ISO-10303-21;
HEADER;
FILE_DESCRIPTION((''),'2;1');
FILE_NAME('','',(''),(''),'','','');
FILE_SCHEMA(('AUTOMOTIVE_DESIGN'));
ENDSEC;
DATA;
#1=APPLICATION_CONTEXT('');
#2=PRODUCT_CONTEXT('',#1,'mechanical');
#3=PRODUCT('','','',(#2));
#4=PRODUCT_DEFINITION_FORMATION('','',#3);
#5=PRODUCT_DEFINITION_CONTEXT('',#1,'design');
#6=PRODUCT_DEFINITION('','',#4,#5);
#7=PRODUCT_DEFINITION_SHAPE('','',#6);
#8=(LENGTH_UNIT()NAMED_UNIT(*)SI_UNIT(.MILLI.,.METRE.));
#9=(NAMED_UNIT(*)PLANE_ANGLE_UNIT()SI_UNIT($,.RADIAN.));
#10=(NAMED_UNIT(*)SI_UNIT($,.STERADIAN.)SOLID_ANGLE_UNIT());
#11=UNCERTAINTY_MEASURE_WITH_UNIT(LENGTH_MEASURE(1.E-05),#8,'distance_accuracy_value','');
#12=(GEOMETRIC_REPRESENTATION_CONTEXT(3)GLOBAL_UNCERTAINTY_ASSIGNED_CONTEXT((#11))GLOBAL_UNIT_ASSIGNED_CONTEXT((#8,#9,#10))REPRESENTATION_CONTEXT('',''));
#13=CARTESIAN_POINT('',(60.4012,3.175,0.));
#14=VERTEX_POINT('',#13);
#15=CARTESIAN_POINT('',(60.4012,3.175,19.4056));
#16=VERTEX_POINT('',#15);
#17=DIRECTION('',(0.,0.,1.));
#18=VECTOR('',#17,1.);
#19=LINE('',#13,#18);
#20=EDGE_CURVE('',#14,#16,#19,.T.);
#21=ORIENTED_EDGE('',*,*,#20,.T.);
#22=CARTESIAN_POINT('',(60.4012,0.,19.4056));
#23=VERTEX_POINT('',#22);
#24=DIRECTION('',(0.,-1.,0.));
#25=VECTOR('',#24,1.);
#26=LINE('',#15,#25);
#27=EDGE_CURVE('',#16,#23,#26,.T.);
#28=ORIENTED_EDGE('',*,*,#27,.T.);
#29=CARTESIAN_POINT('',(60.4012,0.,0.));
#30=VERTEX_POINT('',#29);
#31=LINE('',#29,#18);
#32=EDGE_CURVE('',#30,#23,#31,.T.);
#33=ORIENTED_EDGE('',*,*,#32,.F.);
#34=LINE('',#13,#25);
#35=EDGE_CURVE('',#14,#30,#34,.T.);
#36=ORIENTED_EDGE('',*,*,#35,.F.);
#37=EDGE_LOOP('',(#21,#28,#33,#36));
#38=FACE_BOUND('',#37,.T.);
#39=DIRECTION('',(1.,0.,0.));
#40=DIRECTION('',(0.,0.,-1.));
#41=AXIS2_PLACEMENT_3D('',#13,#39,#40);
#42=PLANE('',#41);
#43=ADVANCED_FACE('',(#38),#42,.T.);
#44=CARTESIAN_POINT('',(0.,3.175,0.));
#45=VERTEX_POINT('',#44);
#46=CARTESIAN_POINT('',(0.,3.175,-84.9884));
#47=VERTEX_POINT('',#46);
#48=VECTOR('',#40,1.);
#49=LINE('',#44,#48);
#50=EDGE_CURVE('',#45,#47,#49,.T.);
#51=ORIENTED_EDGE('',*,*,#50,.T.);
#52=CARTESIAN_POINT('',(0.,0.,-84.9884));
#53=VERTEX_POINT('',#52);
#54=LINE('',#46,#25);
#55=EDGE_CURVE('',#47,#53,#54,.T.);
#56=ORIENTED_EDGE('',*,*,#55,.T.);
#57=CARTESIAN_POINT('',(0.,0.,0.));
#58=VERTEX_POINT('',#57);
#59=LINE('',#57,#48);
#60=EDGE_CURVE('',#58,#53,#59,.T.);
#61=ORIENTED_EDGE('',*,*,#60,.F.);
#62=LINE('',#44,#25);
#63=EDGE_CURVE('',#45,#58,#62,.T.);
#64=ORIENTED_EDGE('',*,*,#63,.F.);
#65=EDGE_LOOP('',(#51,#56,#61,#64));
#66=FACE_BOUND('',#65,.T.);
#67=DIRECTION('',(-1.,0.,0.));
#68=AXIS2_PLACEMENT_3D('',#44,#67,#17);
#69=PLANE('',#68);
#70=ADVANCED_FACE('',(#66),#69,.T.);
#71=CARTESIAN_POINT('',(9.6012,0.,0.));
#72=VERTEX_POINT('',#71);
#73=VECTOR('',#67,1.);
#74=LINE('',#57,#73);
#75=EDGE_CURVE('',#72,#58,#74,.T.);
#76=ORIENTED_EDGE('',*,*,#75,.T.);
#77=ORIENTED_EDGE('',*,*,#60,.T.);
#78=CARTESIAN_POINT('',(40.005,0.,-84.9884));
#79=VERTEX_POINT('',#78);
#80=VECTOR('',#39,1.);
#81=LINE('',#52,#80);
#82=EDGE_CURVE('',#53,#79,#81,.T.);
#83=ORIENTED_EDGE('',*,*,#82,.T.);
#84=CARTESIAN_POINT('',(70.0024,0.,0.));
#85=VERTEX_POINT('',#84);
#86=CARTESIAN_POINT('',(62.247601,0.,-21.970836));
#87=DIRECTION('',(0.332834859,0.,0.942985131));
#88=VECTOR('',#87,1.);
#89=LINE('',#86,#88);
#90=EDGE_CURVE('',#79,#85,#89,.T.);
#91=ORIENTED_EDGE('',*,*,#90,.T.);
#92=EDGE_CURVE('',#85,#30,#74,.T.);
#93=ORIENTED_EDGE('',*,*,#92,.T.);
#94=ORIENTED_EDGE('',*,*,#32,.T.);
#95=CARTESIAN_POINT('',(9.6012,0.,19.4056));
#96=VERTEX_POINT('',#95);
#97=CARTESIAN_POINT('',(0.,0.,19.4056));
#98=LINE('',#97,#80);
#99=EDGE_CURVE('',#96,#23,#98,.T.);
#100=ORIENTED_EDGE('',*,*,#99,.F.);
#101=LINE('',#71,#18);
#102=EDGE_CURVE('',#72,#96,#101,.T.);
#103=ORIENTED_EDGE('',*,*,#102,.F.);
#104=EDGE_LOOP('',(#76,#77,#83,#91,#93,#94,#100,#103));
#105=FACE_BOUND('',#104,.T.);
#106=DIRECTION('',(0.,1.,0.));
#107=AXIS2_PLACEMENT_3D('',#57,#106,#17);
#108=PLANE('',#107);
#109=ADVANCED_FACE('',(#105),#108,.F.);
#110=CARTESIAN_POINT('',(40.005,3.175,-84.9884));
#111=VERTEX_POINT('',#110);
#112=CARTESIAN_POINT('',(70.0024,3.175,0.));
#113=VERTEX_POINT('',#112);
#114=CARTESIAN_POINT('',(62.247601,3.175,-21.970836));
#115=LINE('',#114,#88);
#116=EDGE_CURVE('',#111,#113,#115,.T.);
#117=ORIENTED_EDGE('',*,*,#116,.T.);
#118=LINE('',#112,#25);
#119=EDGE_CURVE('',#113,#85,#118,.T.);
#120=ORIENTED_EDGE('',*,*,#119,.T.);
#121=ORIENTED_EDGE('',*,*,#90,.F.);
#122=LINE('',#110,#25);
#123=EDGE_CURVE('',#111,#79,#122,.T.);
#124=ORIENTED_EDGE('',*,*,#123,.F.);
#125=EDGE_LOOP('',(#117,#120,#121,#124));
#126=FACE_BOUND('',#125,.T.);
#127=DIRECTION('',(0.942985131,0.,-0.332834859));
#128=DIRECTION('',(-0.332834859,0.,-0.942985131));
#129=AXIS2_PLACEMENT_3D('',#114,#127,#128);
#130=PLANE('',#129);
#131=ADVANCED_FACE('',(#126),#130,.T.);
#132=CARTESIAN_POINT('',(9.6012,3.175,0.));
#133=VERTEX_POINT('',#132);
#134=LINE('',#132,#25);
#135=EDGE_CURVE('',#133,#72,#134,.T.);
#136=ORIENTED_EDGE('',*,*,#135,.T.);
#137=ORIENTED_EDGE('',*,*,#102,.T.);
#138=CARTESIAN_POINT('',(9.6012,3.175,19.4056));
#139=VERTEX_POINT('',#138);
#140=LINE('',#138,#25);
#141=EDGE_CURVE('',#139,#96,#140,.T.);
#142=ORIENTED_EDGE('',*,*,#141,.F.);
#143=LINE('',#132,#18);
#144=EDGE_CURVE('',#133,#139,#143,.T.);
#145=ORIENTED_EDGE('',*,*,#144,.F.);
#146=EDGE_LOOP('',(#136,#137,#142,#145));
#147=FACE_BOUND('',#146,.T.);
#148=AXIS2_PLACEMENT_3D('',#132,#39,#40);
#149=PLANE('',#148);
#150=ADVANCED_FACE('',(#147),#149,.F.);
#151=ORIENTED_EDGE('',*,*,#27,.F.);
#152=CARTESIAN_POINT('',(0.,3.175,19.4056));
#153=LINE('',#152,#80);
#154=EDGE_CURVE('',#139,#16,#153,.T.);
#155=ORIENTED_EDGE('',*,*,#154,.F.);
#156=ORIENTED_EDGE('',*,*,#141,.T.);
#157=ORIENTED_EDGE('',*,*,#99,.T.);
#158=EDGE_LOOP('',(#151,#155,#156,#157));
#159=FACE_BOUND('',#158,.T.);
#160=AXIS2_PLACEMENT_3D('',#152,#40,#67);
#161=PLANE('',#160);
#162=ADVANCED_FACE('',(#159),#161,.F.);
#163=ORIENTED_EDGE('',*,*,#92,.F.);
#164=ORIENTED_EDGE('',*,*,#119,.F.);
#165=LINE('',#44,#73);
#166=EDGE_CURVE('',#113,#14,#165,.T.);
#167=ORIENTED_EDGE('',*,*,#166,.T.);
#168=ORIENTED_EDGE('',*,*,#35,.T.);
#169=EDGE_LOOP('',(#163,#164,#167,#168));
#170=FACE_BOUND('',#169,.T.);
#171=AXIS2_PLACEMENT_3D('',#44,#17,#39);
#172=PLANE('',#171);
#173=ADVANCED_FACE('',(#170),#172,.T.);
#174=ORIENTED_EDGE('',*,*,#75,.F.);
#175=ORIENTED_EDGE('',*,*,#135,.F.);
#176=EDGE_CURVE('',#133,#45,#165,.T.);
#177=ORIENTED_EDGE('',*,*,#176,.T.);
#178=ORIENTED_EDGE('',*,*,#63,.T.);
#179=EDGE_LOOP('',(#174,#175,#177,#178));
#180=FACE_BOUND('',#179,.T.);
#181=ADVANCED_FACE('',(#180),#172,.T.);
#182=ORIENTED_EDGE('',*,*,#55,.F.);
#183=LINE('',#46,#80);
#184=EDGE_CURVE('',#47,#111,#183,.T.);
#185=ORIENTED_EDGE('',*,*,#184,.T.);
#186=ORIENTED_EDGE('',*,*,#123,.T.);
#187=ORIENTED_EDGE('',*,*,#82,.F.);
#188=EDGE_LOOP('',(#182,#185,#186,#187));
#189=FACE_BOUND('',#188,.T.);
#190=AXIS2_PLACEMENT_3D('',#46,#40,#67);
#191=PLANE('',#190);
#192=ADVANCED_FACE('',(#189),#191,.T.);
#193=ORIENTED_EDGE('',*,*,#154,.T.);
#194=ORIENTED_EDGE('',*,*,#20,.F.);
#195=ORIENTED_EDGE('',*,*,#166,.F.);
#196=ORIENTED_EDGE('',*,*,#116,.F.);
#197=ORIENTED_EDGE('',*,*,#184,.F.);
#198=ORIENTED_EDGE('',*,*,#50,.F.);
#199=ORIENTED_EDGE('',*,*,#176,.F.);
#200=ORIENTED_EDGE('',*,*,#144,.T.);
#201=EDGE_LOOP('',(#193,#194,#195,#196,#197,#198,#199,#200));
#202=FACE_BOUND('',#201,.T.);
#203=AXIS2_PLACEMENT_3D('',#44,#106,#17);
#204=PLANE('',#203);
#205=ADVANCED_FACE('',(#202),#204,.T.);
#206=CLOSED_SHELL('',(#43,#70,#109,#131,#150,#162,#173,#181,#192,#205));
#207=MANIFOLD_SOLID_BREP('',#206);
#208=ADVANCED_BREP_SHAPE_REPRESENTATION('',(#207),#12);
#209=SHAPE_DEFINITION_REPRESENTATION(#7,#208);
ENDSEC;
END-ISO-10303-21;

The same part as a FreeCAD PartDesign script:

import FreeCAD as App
import Part
import Sketcher
from FreeCAD import Vector
Q = App.Units.Quantity

doc = App.newDocument("Part")
body = doc.addObject("PartDesign::Body", "Body")

sketch1 = body.newObject("Sketcher::SketchObject", "Sketch")
sketch1.AttachmentSupport = (doc.getObject("XZ_Plane"), [""])
sketch1.MapMode = "FlatFace"
sketch1.addGeometry(Part.LineSegment(Vector(9.6012, 0, 0), Vector(9.6012, 19.4056, 0)), False)
sketch1.addGeometry(Part.LineSegment(Vector(9.6012, 19.4056, 0), Vector(60.4012, 19.4056, 0)), False)
sketch1.addGeometry(Part.LineSegment(Vector(60.4012, 19.4056, 0), Vector(60.4012, 0, 0)), False)
sketch1.addGeometry(Part.LineSegment(Vector(60.4012, 0, 0), Vector(70.0024, 0, 0)), False)
sketch1.addGeometry(Part.LineSegment(Vector(70.0024, 0, 0), Vector(40.005, -84.9884, 0)), False)
sketch1.addGeometry(Part.LineSegment(Vector(40.005, -84.9884, 0), Vector(0, -84.9884, 0)), False)
sketch1.addGeometry(Part.LineSegment(Vector(0, -84.9884, 0), Vector(0, 0, 0)), False)
sketch1.addGeometry(Part.LineSegment(Vector(0, 0, 0), Vector(9.6012, 0, 0)), False)
sketch1.addConstraint(Sketcher.Constraint("Coincident", 0, 2, 1, 1))
sketch1.addConstraint(Sketcher.Constraint("Coincident", 1, 2, 2, 1))
sketch1.addConstraint(Sketcher.Constraint("Coincident", 2, 2, 3, 1))
sketch1.addConstraint(Sketcher.Constraint("Coincident", 3, 2, 4, 1))
sketch1.addConstraint(Sketcher.Constraint("Coincident", 4, 2, 5, 1))
sketch1.addConstraint(Sketcher.Constraint("Coincident", 5, 2, 6, 1))
sketch1.addConstraint(Sketcher.Constraint("Coincident", 6, 2, 7, 1))
sketch1.addConstraint(Sketcher.Constraint("Coincident", 7, 2, 0, 1))
sketch1.addConstraint(Sketcher.Constraint("Vertical", 0))
sketch1.addConstraint(Sketcher.Constraint("Horizontal", 1))
sketch1.addConstraint(Sketcher.Constraint("Vertical", 2))
sketch1.addConstraint(Sketcher.Constraint("Horizontal", 3))
sketch1.addConstraint(Sketcher.Constraint("Horizontal", 5))
sketch1.addConstraint(Sketcher.Constraint("Vertical", 6))
sketch1.addConstraint(Sketcher.Constraint("Horizontal", 7))
sketch1.addConstraint(Sketcher.Constraint("Coincident", 6, 2, -1, 1))
sketch1.addConstraint(Sketcher.Constraint("PointOnObject", 2, 2, -1))
sketch1.addConstraint(Sketcher.Constraint("Equal", 3, 7))
sketch1.addConstraint(Sketcher.Constraint("DistanceX", 1, 1, 1, 2, Q("2 in")))
sketch1.addConstraint(Sketcher.Constraint("DistanceX", 3, 1, 3, 2, Q("0.378 in")))
sketch1.addConstraint(Sketcher.Constraint("DistanceX", 5, 2, 5, 1, Q("1.575 in")))
sketch1.addConstraint(Sketcher.Constraint("DistanceY", 0, 1, 0, 2, Q("0.764 in")))
sketch1.addConstraint(Sketcher.Constraint("DistanceY", 6, 1, 6, 2, Q("3.346 in")))
pad1 = body.newObject("PartDesign::Pad", "Pad")
pad1.Profile = sketch1
pad1.Length = Q("0.125 in")
pad1.Reversed = True

doc.recompute()
